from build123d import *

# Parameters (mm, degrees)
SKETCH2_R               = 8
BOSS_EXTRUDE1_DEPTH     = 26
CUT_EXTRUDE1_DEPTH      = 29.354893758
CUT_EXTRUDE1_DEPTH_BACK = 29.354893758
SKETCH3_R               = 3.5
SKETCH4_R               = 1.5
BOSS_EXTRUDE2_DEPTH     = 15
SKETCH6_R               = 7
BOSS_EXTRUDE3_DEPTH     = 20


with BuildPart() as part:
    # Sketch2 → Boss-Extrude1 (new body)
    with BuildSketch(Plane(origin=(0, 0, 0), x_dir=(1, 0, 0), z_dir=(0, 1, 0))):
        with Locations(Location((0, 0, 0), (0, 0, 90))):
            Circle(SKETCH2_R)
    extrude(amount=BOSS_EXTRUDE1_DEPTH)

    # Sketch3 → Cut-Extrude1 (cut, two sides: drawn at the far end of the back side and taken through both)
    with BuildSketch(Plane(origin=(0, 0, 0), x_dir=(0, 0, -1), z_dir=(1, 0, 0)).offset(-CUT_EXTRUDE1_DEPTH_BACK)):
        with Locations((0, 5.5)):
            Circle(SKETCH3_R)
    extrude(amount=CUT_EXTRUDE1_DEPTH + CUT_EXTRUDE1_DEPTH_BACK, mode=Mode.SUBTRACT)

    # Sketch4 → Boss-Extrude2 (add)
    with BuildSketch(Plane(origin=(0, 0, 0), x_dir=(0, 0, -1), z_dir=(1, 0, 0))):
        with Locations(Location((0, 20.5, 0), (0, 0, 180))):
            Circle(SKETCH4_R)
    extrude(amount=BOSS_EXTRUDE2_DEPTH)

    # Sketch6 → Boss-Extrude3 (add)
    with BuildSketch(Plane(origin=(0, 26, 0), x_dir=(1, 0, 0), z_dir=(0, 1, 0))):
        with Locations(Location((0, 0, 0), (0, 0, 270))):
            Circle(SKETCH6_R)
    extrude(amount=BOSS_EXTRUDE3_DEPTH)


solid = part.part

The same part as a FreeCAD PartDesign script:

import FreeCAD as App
import Part
import Sketcher

doc = App.newDocument("Part")
body = doc.addObject("PartDesign::Body", "Body")

# Sketch on XZ plane
sketch1 = body.newObject("Sketcher::SketchObject", "Sketch")
sketch1.AttachmentSupport = (doc.getObject("XZ_Plane"), [""])
sketch1.MapMode = "FlatFace"
sketch1.addGeometry(Part.Circle(App.Vector(0, 0, 0), App.Vector(0, 0, 1), 8), False)
sketch1.addConstraint([
    Sketcher.Constraint("Coincident", 0, 3, -1, 1),
    Sketcher.Constraint("Diameter", 0, 16.0),
])
pad1 = body.newObject("PartDesign::Pad", "Pad")
pad1.Profile = sketch1
pad1.Length = 26
pad1.Reversed = True

# Sketch on YZ plane
sketch2 = body.newObject("Sketcher::SketchObject", "Sketch001")
sketch2.AttachmentSupport = (doc.getObject("YZ_Plane"), [""])
sketch2.MapMode = "FlatFace"
sketch2.addGeometry(Part.Circle(App.Vector(5.5, 0, 0), App.Vector(0, 0, 1), 3.5), False)
sketch2.addConstraint([
    Sketcher.Constraint("PointOnObject", 0, 3, -1),
    Sketcher.Constraint("Diameter", 0, 7.0),
    Sketcher.Constraint("DistanceX", -1, 1, 0, 3, 5.5),
])
pocket1 = body.newObject("PartDesign::Pocket", "Pocket")
pocket1.Profile = sketch2
pocket1.Type = "ThroughAll"
pocket1.Midplane = True

# Sketch on YZ plane
sketch3 = body.newObject("Sketcher::SketchObject", "Sketch002")
sketch3.AttachmentSupport = (doc.getObject("YZ_Plane"), [""])
sketch3.MapMode = "FlatFace"
sketch3.addGeometry(Part.Circle(App.Vector(20.5, 0, 0), App.Vector(0, 0, 1), 1.5), False)
sketch3.addConstraint([
    Sketcher.Constraint("PointOnObject", 0, 3, -1),
    Sketcher.Constraint("Diameter", 0, 3.0),
    Sketcher.Constraint("DistanceX", -1, 1, 0, 3, 20.5),
])
pad2 = body.newObject("PartDesign::Pad", "Pad001")
pad2.Profile = sketch3
pad2.Length = 15

# Sketch on XZ plane
sketch4 = body.newObject("Sketcher::SketchObject", "Sketch003")
sketch4.AttachmentSupport = (doc.getObject("XZ_Plane"), [""])
sketch4.MapMode = "FlatFace"
sketch4.AttachmentOffset = App.Placement(App.Vector(0, 0, -26), App.Rotation())
sketch4.addGeometry(Part.Circle(App.Vector(0, 0, 0), App.Vector(0, 0, 1), 7), False)
sketch4.addConstraint([
    Sketcher.Constraint("Coincident", 0, 3, -1, 1),
    Sketcher.Constraint("Diameter", 0, 14.0),
])
pad3 = body.newObject("PartDesign::Pad", "Pad002")
pad3.Profile = sketch4
pad3.Length = 20
pad3.Reversed = True

doc.recompute()
